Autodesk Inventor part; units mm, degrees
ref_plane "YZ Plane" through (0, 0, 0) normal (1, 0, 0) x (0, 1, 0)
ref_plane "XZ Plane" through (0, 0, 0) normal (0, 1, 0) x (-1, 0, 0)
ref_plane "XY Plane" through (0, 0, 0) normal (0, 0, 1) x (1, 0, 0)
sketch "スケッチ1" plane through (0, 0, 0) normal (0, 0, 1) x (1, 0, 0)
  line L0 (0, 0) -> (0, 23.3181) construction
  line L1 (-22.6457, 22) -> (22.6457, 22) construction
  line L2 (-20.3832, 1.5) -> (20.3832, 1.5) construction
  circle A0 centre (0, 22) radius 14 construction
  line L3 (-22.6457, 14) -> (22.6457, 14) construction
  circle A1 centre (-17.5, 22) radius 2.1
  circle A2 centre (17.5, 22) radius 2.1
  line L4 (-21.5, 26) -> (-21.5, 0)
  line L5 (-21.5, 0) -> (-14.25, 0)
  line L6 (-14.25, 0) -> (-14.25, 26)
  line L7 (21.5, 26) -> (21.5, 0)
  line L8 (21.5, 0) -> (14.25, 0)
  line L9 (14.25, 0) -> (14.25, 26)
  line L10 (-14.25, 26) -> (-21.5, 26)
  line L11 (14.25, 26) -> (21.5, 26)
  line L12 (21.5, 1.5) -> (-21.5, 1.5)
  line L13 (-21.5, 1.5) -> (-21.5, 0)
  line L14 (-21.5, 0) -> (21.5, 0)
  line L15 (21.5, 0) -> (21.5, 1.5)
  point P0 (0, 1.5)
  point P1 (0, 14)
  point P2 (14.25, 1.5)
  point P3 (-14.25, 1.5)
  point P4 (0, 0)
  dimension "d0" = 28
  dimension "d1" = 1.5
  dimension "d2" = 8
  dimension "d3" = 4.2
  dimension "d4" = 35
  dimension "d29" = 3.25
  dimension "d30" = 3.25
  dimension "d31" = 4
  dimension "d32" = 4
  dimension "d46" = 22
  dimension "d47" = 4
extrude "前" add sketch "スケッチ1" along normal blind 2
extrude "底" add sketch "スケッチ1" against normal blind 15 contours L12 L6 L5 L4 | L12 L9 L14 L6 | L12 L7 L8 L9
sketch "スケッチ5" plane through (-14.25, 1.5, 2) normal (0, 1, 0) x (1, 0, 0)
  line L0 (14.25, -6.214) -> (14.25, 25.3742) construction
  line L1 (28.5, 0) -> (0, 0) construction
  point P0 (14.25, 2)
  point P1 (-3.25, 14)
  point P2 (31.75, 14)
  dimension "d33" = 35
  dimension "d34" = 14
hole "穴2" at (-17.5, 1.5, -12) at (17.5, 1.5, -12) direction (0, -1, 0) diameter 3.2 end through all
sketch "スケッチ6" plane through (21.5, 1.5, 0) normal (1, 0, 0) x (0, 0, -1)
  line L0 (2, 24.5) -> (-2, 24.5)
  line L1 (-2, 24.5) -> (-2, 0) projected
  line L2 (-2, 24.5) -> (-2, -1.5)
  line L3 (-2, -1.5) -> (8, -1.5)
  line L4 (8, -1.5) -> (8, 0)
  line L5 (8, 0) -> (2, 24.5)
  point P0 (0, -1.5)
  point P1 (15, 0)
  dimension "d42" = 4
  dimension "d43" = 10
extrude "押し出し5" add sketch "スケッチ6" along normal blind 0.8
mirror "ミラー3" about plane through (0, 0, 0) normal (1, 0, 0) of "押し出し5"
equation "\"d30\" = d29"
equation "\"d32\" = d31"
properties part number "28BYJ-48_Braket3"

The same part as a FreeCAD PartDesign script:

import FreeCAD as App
import Part
import Sketcher
Q = App.Units.Quantity


def add_polygon(sketch, points):
    """Adds a closed chain of lines whose ends are joined by coincident constraints."""
    first, n = sketch.GeometryCount, len(points)
    for a, b in zip(points, points[1:] + points[:1]):
        sketch.addGeometry(Part.LineSegment(App.Vector(*a, 0), App.Vector(*b, 0)), False)
    for i in range(n):
        sketch.addConstraint(Sketcher.Constraint("Coincident", first + i, 2, first + (i + 1) % n, 1))

doc = App.newDocument("Part")
body = doc.addObject("PartDesign::Body", "Body")

# Sketch on XY plane
sketch1 = body.newObject("Sketcher::SketchObject", "Sketch")
sketch1.AttachmentSupport = (doc.getObject("XY_Plane"), [""])
sketch1.MapMode = "FlatFace"
add_polygon(sketch1, [(-14.2, 26), (-21.5, 26), (-21.5, 0), (21.5, 0), (21.5, 26), (14.2, 26), (14.2, 1.5), (-14.2, 1.5)])  # lines 0-7
sketch1.addGeometry(Part.Circle(App.Vector(-17.5, 22, 0), App.Vector(0, 0, 1), 2.1), False)  # 8
sketch1.addGeometry(Part.Circle(App.Vector(17.5, 22, 0), App.Vector(0, 0, 1), 2.1), False)  # 9
sketch1.addConstraint([
    Sketcher.Constraint("Horizontal", 0),
    Sketcher.Constraint("Vertical", 1),
    Sketcher.Constraint("Horizontal", 2),
    Sketcher.Constraint("Vertical", 3),
    Sketcher.Constraint("Horizontal", 4),
    Sketcher.Constraint("Vertical", 5),
    Sketcher.Constraint("Horizontal", 6),
    Sketcher.Constraint("Vertical", 7),
    Sketcher.Constraint("Equal", 8, 9),
    Sketcher.Constraint("Symmetric", 1, 2, 2, 2, -1, 1),
    Sketcher.Constraint("Symmetric", 8, 3, 9, 3, -2),
    Sketcher.Constraint("Symmetric", 4, 2, 7, 2, -2),
    Sketcher.Constraint("Diameter", 8, Q("4.2 mm")),
    Sketcher.Constraint("DistanceY", -1, 1, 8, 3, Q("22 mm")),
    Sketcher.Constraint("DistanceX", 8, 3, 9, 3, Q("35 mm")),
    Sketcher.Constraint("DistanceX", 0, 2, 8, 3, Q("4 mm")),
    Sketcher.Constraint("DistanceY", 8, 3, 0, 2, Q("4 mm")),
    Sketcher.Constraint("DistanceY", -1, 1, 5, 2, Q("1.5 mm")),
    Sketcher.Constraint("DistanceX", 4, 2, 9, 3, Q("3.25 mm")),
])
pad1 = body.newObject("PartDesign::Pad", "Pad")
pad1.Profile = sketch1
pad1.Length = 2

# Sketch on XY plane
sketch2 = body.newObject("Sketcher::SketchObject", "Sketch001")
sketch2.AttachmentSupport = (doc.getObject("XY_Plane"), [""])
sketch2.MapMode = "FlatFace"
add_polygon(sketch2, [(-21.5, 1.5), (-21.5, 0), (21.5, 0), (21.5, 1.5)])  # lines 0-3
sketch2.addConstraint([
    Sketcher.Constraint("Vertical", 0),
    Sketcher.Constraint("Horizontal", 1),
    Sketcher.Constraint("Vertical", 2),
    Sketcher.Constraint("Horizontal", 3),
    Sketcher.Constraint("Symmetric", 0, 2, 1, 2, -1, 1),
    Sketcher.Constraint("DistanceY", 0, 2, 0, 1, Q("1.5 mm")),
    Sketcher.Constraint("DistanceX", 1, 1, 1, 2, Q("43 mm")),
])
pad2 = body.newObject("PartDesign::Pad", "Pad001")
pad2.Profile = sketch2
pad2.Length = 15
pad2.Reversed = True

# Sketch on XZ plane
sketch3 = body.newObject("Sketcher::SketchObject", "Sketch002")
sketch3.AttachmentSupport = (doc.getObject("XZ_Plane"), [""])
sketch3.MapMode = "FlatFace"
sketch3.AttachmentOffset = App.Placement(App.Vector(0, 0, -1.5), App.Rotation())
sketch3.addGeometry([
    Part.Circle(App.Vector(-17.5, -12, 0), App.Vector(0, 0, 1), 1.6),
    Part.Circle(App.Vector(17.5, -12, 0), App.Vector(0, 0, 1), 1.6),
], False)
sketch3.addConstraint([
    Sketcher.Constraint("Equal", 0, 1),
    Sketcher.Constraint("Symmetric", 0, 3, 1, 3, -2),
    Sketcher.Constraint("Diameter", 0, Q("3.2 mm")),
    Sketcher.Constraint("DistanceY", 0, 3, -1, 1, Q("12 mm")),
    Sketcher.Constraint("DistanceX", 0, 3, 1, 3, Q("35 mm")),
])
doc.recompute()
hole = body.newObject("PartDesign::Hole", "Hole")
hole.Profile = sketch3
hole.ThreadType = "None"
hole.Diameter = 3.2
hole.DepthType = "ThroughAll"
hole.Reversed = True

# Sketch on YZ plane
sketch4 = body.newObject("Sketcher::SketchObject", "Sketch003")
sketch4.AttachmentSupport = (doc.getObject("YZ_Plane"), [""])
sketch4.MapMode = "FlatFace"
sketch4.AttachmentOffset = App.Placement(App.Vector(0, 0, 21.5), App.Rotation())
add_polygon(sketch4, [(1.5, -8), (26, -2), (26, 2), (0, 2), (0, -8)])  # lines 0-4
sketch4.addConstraint([
    Sketcher.Constraint("Vertical", 1),
    Sketcher.Constraint("Horizontal", 2),
    Sketcher.Constraint("Vertical", 3),
    Sketcher.Constraint("Horizontal", 4),
    Sketcher.Constraint("PointOnObject", 2, 2, -2),
    Sketcher.Constraint("DistanceY", 1, 1, 1, 2, Q("4 mm")),
    Sketcher.Constraint("DistanceY", 3, 2, 3, 1, Q("10 mm")),
    Sketcher.Constraint("DistanceX", 2, 2, 2, 1, Q("26 mm")),
    Sketcher.Constraint("DistanceX", 4, 1, 4, 2, Q("1.5 mm")),
    Sketcher.Constraint("DistanceY", 0, 2, -1, 1, Q("2 mm")),
])
pad3 = body.newObject("PartDesign::Pad", "Pad002")
pad3.Profile = sketch4
pad3.Length = 0.8
doc.recompute()

mirrored = body.newObject("PartDesign::Mirrored", "Mirrored")
mirrored.Originals = [pad3]
mirrored.MirrorPlane = (doc.getObject("YZ_Plane"), [""])
body.Tip = mirrored

doc.recompute()
